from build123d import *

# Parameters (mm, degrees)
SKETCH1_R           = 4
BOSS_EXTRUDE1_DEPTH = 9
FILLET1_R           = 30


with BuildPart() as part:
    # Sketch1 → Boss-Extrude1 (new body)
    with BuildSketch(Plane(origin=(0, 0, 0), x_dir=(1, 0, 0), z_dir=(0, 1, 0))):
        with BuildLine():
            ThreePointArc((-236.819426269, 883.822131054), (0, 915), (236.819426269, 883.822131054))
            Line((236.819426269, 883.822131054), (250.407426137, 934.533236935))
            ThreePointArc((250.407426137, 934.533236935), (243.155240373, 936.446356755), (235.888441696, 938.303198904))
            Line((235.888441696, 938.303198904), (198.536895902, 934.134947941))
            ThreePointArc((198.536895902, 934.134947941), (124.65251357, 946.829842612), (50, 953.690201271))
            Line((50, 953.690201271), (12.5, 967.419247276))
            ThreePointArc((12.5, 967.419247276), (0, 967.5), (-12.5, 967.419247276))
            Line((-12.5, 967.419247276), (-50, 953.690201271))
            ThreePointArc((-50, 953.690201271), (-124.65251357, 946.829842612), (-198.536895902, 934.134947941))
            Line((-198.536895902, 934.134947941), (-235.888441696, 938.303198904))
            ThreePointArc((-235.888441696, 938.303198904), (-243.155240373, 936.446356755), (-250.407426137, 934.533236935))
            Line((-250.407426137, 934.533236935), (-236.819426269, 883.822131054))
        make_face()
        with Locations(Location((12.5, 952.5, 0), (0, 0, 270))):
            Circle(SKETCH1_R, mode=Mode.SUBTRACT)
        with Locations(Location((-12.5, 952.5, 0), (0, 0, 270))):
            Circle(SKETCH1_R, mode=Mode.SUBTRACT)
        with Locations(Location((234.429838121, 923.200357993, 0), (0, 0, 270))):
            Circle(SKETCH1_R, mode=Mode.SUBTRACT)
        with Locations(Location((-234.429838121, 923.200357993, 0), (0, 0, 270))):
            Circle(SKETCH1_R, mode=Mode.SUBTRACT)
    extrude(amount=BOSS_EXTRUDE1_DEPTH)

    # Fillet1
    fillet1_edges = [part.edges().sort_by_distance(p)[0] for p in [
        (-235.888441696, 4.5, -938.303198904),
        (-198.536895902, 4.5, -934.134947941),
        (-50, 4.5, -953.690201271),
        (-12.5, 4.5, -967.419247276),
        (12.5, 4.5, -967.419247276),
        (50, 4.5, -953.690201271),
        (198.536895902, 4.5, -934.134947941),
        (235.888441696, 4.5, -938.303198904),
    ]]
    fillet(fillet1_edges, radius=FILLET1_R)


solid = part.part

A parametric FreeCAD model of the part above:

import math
import FreeCAD as App
import Part
import Sketcher
Q = App.Units.Quantity


def edges_at(feature, points):
    """Names of the edges that pass closest to the given points."""
    edges = feature.Shape.Edges
    near = lambda p: min(range(len(edges)), key=lambda i: edges[i].distToShape(Part.Vertex(*p))[0])
    return sorted({f"Edge{near(p) + 1}" for p in points})

doc = App.newDocument("Part")
body = doc.addObject("PartDesign::Body", "Body")

sketch1 = body.newObject("Sketcher::SketchObject", "Sketch")
sketch1.AttachmentSupport = (doc.getObject("XZ_Plane"), [""])
sketch1.MapMode = "FlatFace"
sketch1.addGeometry([
    Part.ArcOfCircle(Part.Circle(App.Vector(0, 0, 0), App.Vector(0, 0, 1), 915), math.radians(-105), math.radians(-75)),
    Part.LineSegment(App.Vector(236.8, -883.8, 0), App.Vector(250.4, -934.5, 0)),
    Part.ArcOfCircle(Part.Circle(App.Vector(0, 0, 0), App.Vector(0, 0, 1), 967.5), math.radians(-75.89), math.radians(-75)),
    Part.LineSegment(App.Vector(235.9, -938.3, 0), App.Vector(198.5, -934.1, 0)),
    Part.ArcOfCircle(Part.Circle(App.Vector(0, 0, 0), App.Vector(0, 0, 1), 955), math.radians(-87), math.radians(-78)),
    Part.LineSegment(App.Vector(50, -953.7, 0), App.Vector(12.5, -967.4, 0)),
    Part.ArcOfCircle(Part.Circle(App.Vector(0, 0, 0), App.Vector(0, 0, 1), 967.5), math.radians(-90.74), math.radians(-89.26)),
    Part.LineSegment(App.Vector(-12.5, -967.4, 0), App.Vector(-50, -953.7, 0)),
    Part.ArcOfCircle(Part.Circle(App.Vector(0, 0, 0), App.Vector(0, 0, 1), 955), math.radians(-102), math.radians(-93)),
    Part.LineSegment(App.Vector(-198.5, -934.1, 0), App.Vector(-235.9, -938.3, 0)),
    Part.ArcOfCircle(Part.Circle(App.Vector(0, 0, 0), App.Vector(0, 0, 1), 967.5), math.radians(-105), math.radians(-104.11)),
    Part.LineSegment(App.Vector(-250.4, -934.5, 0), App.Vector(-236.8, -883.8, 0)),
    Part.Circle(App.Vector(-234.4, -923.2, 0), App.Vector(0, 0, 1), 4),
    Part.Circle(App.Vector(234.4, -923.2, 0), App.Vector(0, 0, 1), 4),
    Part.Circle(App.Vector(-12.5, -952.5, 0), App.Vector(0, 0, 1), 4),
    Part.Circle(App.Vector(12.5, -952.5, 0), App.Vector(0, 0, 1), 4),
], False)
sketch1.addConstraint([
    Sketcher.Constraint("Coincident", 0, 2, 1, 1),
    Sketcher.Constraint("Coincident", 1, 2, 2, 2),
    Sketcher.Constraint("Coincident", 2, 1, 3, 1),
    Sketcher.Constraint("Coincident", 3, 2, 4, 2),
    Sketcher.Constraint("Coincident", 4, 1, 5, 1),
    Sketcher.Constraint("Coincident", 5, 2, 6, 2),
    Sketcher.Constraint("Coincident", 6, 1, 7, 1),
    Sketcher.Constraint("Coincident", 7, 2, 8, 2),
    Sketcher.Constraint("Coincident", 8, 1, 9, 1),
    Sketcher.Constraint("Coincident", 9, 2, 10, 2),
    Sketcher.Constraint("Coincident", 10, 1, 11, 1),
    Sketcher.Constraint("Coincident", 11, 2, 0, 1),
    Sketcher.Constraint("Coincident", 0, 3, -1, 1),
    Sketcher.Constraint("Coincident", 2, 3, -1, 1),
    Sketcher.Constraint("Coincident", 4, 3, -1, 1),
    Sketcher.Constraint("Coincident", 6, 3, -1, 1),
    Sketcher.Constraint("Coincident", 8, 3, -1, 1),
    Sketcher.Constraint("Coincident", 10, 3, -1, 1),
    Sketcher.Constraint("Equal", 4, 8),
    Sketcher.Constraint("Equal", 2, 10),
    Sketcher.Constraint("Equal", 12, 13),
    Sketcher.Constraint("Equal", 13, 14),
    Sketcher.Constraint("Equal", 14, 15),
    Sketcher.Constraint("Symmetric", 12, 3, 13, 3, -2),
    Sketcher.Constraint("Symmetric", 14, 3, 15, 3, -2),
    Sketcher.Constraint("Vertical", 15, 3, 5, 2),
    Sketcher.Constraint("Equal", 5, 7),
    Sketcher.Constraint("Equal", 3, 9),
    Sketcher.Constraint("Diameter", 12, Q("8 mm")),
    Sketcher.Constraint("Radius", 0, Q("915 mm")),
    Sketcher.Constraint("Radius", 4, Q("955 mm")),
    Sketcher.Constraint("Radius", 6, Q("967.5 mm")),
    Sketcher.Constraint("Angle", 1, Q("-75 deg")),
    Sketcher.Constraint("Angle", 11, Q("75 deg")),
    Sketcher.Constraint("DistanceX", 7, 2, -1, 1, Q("50 mm")),
    Sketcher.Constraint("DistanceX", 14, 3, 15, 3, Q("25 mm")),
    Sketcher.Constraint("Distance", 1, Q("52.5 mm")),
    Sketcher.Constraint("DistanceY", 14, 3, -1, 1, Q("952.5 mm")),
    Sketcher.Constraint("DistanceY", 9, 2, -1, 1, Q("938.303199 mm")),
    Sketcher.Constraint("DistanceY", 5, 2, 3, 2, Q("33.284299 mm")),
    Sketcher.Constraint("DistanceX", 12, 3, -1, 1, Q("234.429838 mm")),
    Sketcher.Constraint("DistanceY", 11, 2, -1, 1, Q("883.822131 mm")),
    Sketcher.Constraint("DistanceY", 12, 3, 10, 3, Q("923.200349 mm")),
    Sketcher.Constraint("DistanceX", 13, 3, 1, 2, Q("15.977588 mm")),
    Sketcher.Constraint("Distance", 3, Q("37.583404 mm")),
    Sketcher.Constraint("Distance", 5, Q("39.934155 mm")),
])
pad1 = body.newObject("PartDesign::Pad", "Pad")
pad1.Profile = sketch1
pad1.Length = 9
pad1.Reversed = True
doc.recompute()

fillet = body.newObject("PartDesign::Fillet", "Fillet")
fillet.Base = (pad1, edges_at(pad1, [
    (-235.888, 4.5, -938.303),
    (-198.537, 4.5, -934.135),
    (-50, 4.5, -953.69),
    (-12.5, 4.5, -967.419),
    (12.5, 4.5, -967.419),
    (50, 4.5, -953.69),
    (198.537, 4.5, -934.135),
    (235.888, 4.5, -938.303),
]))
fillet.Radius = 30

doc.recompute()
